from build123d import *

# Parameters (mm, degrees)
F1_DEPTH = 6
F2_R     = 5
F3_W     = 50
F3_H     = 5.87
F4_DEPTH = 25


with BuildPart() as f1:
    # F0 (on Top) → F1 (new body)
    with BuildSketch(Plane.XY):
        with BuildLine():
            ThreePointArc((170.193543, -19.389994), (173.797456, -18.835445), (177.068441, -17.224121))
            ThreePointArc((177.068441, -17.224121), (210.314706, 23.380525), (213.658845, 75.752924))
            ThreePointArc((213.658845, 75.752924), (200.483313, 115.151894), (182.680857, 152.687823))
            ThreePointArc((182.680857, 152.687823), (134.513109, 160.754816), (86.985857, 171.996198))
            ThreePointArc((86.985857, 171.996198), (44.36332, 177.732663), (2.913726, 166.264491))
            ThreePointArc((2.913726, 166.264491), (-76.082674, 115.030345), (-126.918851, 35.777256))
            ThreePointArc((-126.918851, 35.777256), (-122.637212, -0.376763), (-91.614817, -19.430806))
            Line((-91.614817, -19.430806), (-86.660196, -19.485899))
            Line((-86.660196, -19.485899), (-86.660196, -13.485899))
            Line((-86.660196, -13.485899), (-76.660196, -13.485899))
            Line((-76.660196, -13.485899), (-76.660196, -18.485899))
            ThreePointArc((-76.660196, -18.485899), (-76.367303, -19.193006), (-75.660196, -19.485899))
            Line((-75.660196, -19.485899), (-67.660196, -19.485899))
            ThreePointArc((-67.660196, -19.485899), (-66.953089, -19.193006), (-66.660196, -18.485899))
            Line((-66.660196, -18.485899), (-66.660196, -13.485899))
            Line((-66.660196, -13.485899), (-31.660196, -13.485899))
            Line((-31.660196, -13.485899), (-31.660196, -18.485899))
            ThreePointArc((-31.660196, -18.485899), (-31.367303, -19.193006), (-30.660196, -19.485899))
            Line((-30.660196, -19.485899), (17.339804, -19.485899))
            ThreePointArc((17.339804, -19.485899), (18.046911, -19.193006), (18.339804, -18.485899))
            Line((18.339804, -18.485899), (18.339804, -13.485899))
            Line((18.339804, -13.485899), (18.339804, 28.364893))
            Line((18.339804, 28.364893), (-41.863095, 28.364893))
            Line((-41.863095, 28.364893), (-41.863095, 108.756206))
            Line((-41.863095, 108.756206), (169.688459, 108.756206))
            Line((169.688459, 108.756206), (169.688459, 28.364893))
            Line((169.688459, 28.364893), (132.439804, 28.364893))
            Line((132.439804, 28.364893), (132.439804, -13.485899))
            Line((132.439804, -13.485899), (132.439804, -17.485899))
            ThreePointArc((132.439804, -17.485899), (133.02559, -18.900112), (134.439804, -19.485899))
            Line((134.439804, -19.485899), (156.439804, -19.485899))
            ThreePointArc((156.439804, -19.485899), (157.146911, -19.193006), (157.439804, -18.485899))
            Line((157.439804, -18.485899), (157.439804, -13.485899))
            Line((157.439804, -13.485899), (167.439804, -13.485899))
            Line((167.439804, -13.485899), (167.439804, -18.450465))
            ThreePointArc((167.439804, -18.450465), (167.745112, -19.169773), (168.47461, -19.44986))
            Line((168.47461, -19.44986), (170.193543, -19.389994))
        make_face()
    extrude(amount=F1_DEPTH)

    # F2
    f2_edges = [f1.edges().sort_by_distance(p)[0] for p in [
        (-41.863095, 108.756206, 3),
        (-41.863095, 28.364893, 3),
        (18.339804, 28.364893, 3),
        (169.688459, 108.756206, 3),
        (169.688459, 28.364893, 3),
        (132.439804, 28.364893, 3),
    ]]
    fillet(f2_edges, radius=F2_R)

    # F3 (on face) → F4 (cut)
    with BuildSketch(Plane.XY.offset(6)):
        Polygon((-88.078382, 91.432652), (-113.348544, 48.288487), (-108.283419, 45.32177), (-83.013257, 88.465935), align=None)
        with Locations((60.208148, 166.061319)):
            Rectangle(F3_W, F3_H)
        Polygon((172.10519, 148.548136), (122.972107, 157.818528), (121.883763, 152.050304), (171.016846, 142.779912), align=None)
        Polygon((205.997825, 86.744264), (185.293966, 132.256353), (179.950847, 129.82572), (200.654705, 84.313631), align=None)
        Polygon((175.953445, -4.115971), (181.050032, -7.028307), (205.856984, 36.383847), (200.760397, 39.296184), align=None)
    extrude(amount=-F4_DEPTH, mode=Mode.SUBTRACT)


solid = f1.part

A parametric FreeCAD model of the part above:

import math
import FreeCAD as App
import Part
import Sketcher

V = App.Vector
Q = App.Units.Quantity


def edges_at(feature, points):
    """Names of the edges that pass closest to the given points."""
    edges = feature.Shape.Edges
    near = lambda p: min(range(len(edges)), key=lambda i: edges[i].distToShape(Part.Vertex(*p))[0])
    return sorted({f"Edge{near(p) + 1}" for p in points})

doc = App.newDocument("Part")
params = doc.addObject("Spreadsheet::Sheet", "Params")
for row, (alias, value) in enumerate([
    ("sketch1_radius", "0.999999 mm"),
    ("sketch1_radius2", "2 mm"),
    ("sketch1_width", "10 mm"),
    ("sketch1_width2", "8 mm"),
    ("sketch1_width3", "35 mm"),
    ("pad1_length", "6 mm"),
    ("fillet_radius", "5 mm"),
    ("sketch2_width", "50 mm"),
    ("sketch2_length", "50.000001 mm"),
    ("sketch2_height", "5.87 mm"),
    ("sketch2_length2", "5.87 mm"),
    ("pocket1_length", "25 mm"),
], start=1):
    params.set(f"A{row}", alias)
    params.set(f"B{row}", "=" + value)
    params.setAlias(f"B{row}", alias)

body = doc.addObject("PartDesign::Body", "Body")

# Sketch on XY plane
sketch1 = doc.addObject("Sketcher::SketchObject", "Sketch")
body.addObject(sketch1)
sketch1.AttachmentSupport = (doc.XY_Plane, [""])
sketch1.MapMode = "FlatFace"
sketch1.addGeometry([
    Part.ArcOfCircle(Part.Circle(V(170.191678, -7.390013, 0), V(0, 0, 1), 11.999981), math.radians(-89.991096), math.radians(-55.035802)),  # 0
    Part.ArcOfCircle(Part.Circle(V(130.563955, 54.765822, 0), V(0, 0, 1), 85.704254), math.radians(-57.138111), math.radians(14.174635)),  # 1
    Part.ArcOfCircle(Part.Circle(V(-120.485147, -14.086686, 0), V(0, 0, 1), 346.01064), math.radians(15.048944), math.radians(28.815612)),  # 2
    Part.ArcOfCircle(Part.Circle(V(280.190605, 882.752808, 0), V(0, 0, 1), 736.548052), math.radians(-105.20724), math.radians(-97.607578)),  # 3
    Part.ArcOfCircle(Part.Circle(V(51.658691, 70.724843, 0), V(0, 0, 1), 107.256216), math.radians(70.769353), math.radians(117.030978)),  # 4
    Part.ArcOfCircle(Part.Circle(V(82.118457, -42.377087, 0), V(0, 0, 1), 223.16966), math.radians(110.787815), math.radians(159.500362)),  # 5
    Part.ArcOfCircle(Part.Circle(V(-87.456848, 22.12011, 0), V(0, 0, 1), 41.75844), math.radians(160.910111), math.radians(264.285478)),  # 6
    Part.LineSegment(V(-91.614817, -19.430806, 0), V(-86.660196, -19.485899, 0)),  # 7
    Part.LineSegment(V(-86.660196, -19.485899, 0), V(-86.660196, -13.485899, 0)),  # 8
    Part.LineSegment(V(-86.660196, -13.485899, 0), V(-76.660196, -13.485899, 0)),  # 9
    Part.LineSegment(V(-76.660196, -13.485899, 0), V(-76.660196, -18.485899, 0)),  # 10
    Part.ArcOfCircle(Part.Circle(V(-75.660197, -18.4859, 0), V(0, 0, 1), 0.999999), math.radians(179.999957), math.radians(270.000043)),  # 11
    Part.LineSegment(V(-75.660196, -19.485899, 0), V(-67.660196, -19.485899, 0)),  # 12
    Part.ArcOfCircle(Part.Circle(V(-67.660195, -18.4859, 0), V(0, 0, 1), 0.999999), math.radians(-90.000043), math.radians(0.000043)),  # 13
    Part.LineSegment(V(-66.660196, -18.485899, 0), V(-66.660196, -13.485899, 0)),  # 14
    Part.LineSegment(V(-66.660196, -13.485899, 0), V(-31.660196, -13.485899, 0)),  # 15
    Part.LineSegment(V(-31.660196, -13.485899, 0), V(-31.660196, -18.485899, 0)),  # 16
    Part.ArcOfCircle(Part.Circle(V(-30.660197, -18.4859, 0), V(0, 0, 1), 0.999999), math.radians(179.999957), math.radians(270.000043)),  # 17
    Part.LineSegment(V(-30.660196, -19.485899, 0), V(17.339804, -19.485899, 0)),  # 18
    Part.ArcOfCircle(Part.Circle(V(17.339805, -18.4859, 0), V(0, 0, 1), 0.999999), math.radians(-90.000043), math.radians(0.000043)),  # 19
    Part.LineSegment(V(18.339804, -18.485899, 0), V(18.339804, 28.364893, 0)),  # 20
    Part.LineSegment(V(18.339804, 28.364893, 0), V(-41.863095, 28.364893, 0)),  # 21
    Part.LineSegment(V(-41.863095, 28.364893, 0), V(-41.863095, 108.756206, 0)),  # 22
    Part.LineSegment(V(-41.863095, 108.756206, 0), V(169.688459, 108.756206, 0)),  # 23
    Part.LineSegment(V(169.688459, 108.756206, 0), V(169.688459, 28.364893, 0)),  # 24
    Part.LineSegment(V(169.688459, 28.364893, 0), V(132.439804, 28.364893, 0)),  # 25
    Part.LineSegment(V(132.439804, 28.364893, 0), V(132.439804, -17.485899, 0)),  # 26
    Part.ArcOfCircle(Part.Circle(V(134.439804, -17.485899, 0), V(0, 0, 1), 2), math.radians(-179.999994), math.radians(-90.000006)),  # 27
    Part.LineSegment(V(134.439804, -19.485899, 0), V(156.439804, -19.485899, 0)),  # 28
    Part.ArcOfCircle(Part.Circle(V(156.439805, -18.4859, 0), V(0, 0, 1), 0.999999), math.radians(-90.000043), math.radians(0.000043)),  # 29
    Part.LineSegment(V(157.439804, -18.485899, 0), V(157.439804, -13.485899, 0)),  # 30
    Part.LineSegment(V(157.439804, -13.485899, 0), V(167.439804, -13.485899, 0)),  # 31
    Part.LineSegment(V(167.439804, -13.485899, 0), V(167.439804, -18.450465, 0)),  # 32
    Part.ArcOfCircle(Part.Circle(V(168.439804, -18.450466, 0), V(0, 0, 1), 1), math.radians(179.999971), math.radians(271.994617)),  # 33
    Part.LineSegment(V(168.47461, -19.44986, 0), V(170.193543, -19.389994, 0)),  # 34
], False)
sketch1.addConstraint([
    Sketcher.Constraint("Coincident", 0, 2, 1, 1),
    Sketcher.Constraint("Coincident", 1, 2, 2, 1),
    Sketcher.Constraint("Coincident", 2, 2, 3, 2),
    Sketcher.Constraint("Coincident", 3, 1, 4, 1),
    Sketcher.Constraint("Coincident", 4, 2, 5, 1),
    Sketcher.Constraint("Coincident", 5, 2, 6, 1),
    Sketcher.Constraint("Coincident", 6, 2, 7, 1),
    Sketcher.Constraint("Coincident", 7, 2, 8, 1),
    Sketcher.Constraint("Coincident", 8, 2, 9, 1),
    Sketcher.Constraint("Coincident", 9, 2, 10, 1),
    Sketcher.Constraint("Tangent", 10, 2, 11, 1),
    Sketcher.Constraint("Tangent", 11, 2, 12, 1),
    Sketcher.Constraint("Tangent", 12, 2, 13, 1),
    Sketcher.Constraint("Tangent", 13, 2, 14, 1),
    Sketcher.Constraint("Coincident", 14, 2, 15, 1),
    Sketcher.Constraint("Coincident", 15, 2, 16, 1),
    Sketcher.Constraint("Tangent", 16, 2, 17, 1),
    Sketcher.Constraint("Tangent", 17, 2, 18, 1),
    Sketcher.Constraint("Tangent", 18, 2, 19, 1),
    Sketcher.Constraint("Tangent", 19, 2, 20, 1),
    Sketcher.Constraint("Coincident", 20, 2, 21, 1),
    Sketcher.Constraint("Coincident", 21, 2, 22, 1),
    Sketcher.Constraint("Coincident", 22, 2, 23, 1),
    Sketcher.Constraint("Coincident", 23, 2, 24, 1),
    Sketcher.Constraint("Coincident", 24, 2, 25, 1),
    Sketcher.Constraint("Coincident", 25, 2, 26, 1),
    Sketcher.Constraint("Tangent", 26, 2, 27, 1),
    Sketcher.Constraint("Tangent", 27, 2, 28, 1),
    Sketcher.Constraint("Tangent", 28, 2, 29, 1),
    Sketcher.Constraint("Tangent", 29, 2, 30, 1),
    Sketcher.Constraint("Coincident", 30, 2, 31, 1),
    Sketcher.Constraint("Coincident", 31, 2, 32, 1),
    Sketcher.Constraint("Tangent", 32, 2, 33, 1),
    Sketcher.Constraint("Tangent", 33, 2, 34, 1),
    Sketcher.Constraint("Coincident", 34, 2, 0, 1),
    Sketcher.Constraint("Vertical", 8),
    Sketcher.Constraint("Horizontal", 9),
    Sketcher.Constraint("Vertical", 10),
    Sketcher.Constraint("Horizontal", 12),
    Sketcher.Constraint("Vertical", 14),
    Sketcher.Constraint("Horizontal", 15),
    Sketcher.Constraint("Vertical", 16),
    Sketcher.Constraint("Horizontal", 18),
    Sketcher.Constraint("Vertical", 20),
    Sketcher.Constraint("Horizontal", 21),
    Sketcher.Constraint("Vertical", 22),
    Sketcher.Constraint("Horizontal", 23),
    Sketcher.Constraint("Vertical", 24),
    Sketcher.Constraint("Horizontal", 25),
    Sketcher.Constraint("Vertical", 26),
    Sketcher.Constraint("Horizontal", 28),
    Sketcher.Constraint("Vertical", 30),
    Sketcher.Constraint("Horizontal", 31),
    Sketcher.Constraint("Vertical", 32),
    Sketcher.Constraint("Equal", 11, 13),
    Sketcher.Constraint("Equal", 13, 17),
    Sketcher.Constraint("Equal", 17, 19),
    Sketcher.Constraint("Equal", 19, 29),
    Sketcher.Constraint("Equal", 29, 33),
    Sketcher.Constraint("Horizontal", 13, 3, 17, 3),
    Sketcher.Constraint("Horizontal", 19, 3, 29, 3),
    Sketcher.Constraint("Horizontal", 7, 2, 11, 2),
    Sketcher.Constraint("Horizontal", 9, 2, 14, 2),
    Sketcher.Constraint("Horizontal", 21, 2, 24, 2),
    Sketcher.Constraint("Horizontal", 15, 2, 30, 2),
    Sketcher.Constraint("Equal", 9, 31),
    Sketcher.Constraint("Radius", 11, Q("0.999999 mm")),
    Sketcher.Constraint("Radius", 27, Q("2 mm")),
    Sketcher.Constraint("DistanceX", 9, 1, 9, 2, Q("10 mm")),
    Sketcher.Constraint("DistanceX", 12, 1, 12, 2, Q("8 mm")),
    Sketcher.Constraint("DistanceX", 15, 1, 15, 2, Q("35 mm")),
    Sketcher.Constraint("DistanceX", 18, 1, 18, 2, Q("48 mm")),
    Sketcher.Constraint("DistanceX", 28, 1, 28, 2, Q("22 mm")),
    Sketcher.Constraint("DistanceY", 8, 1, 8, 2, Q("6 mm")),
    Sketcher.Constraint("DistanceX", 19, 3, 27, 3, Q("117.099999 mm")),
    Sketcher.Constraint("Radius", 0, Q("11.999981 mm")),
    Sketcher.Constraint("Radius", 2, Q("346.01064 mm")),
    Sketcher.Constraint("Radius", 5, Q("223.16966 mm")),
    Sketcher.Constraint("Radius", 6, Q("41.75844 mm")),
    Sketcher.Constraint("DistanceX", 21, 2, 21, 1, Q("60.202899 mm")),
    Sketcher.Constraint("Radius", 1, Q("85.704254 mm")),
    Sketcher.Constraint("Radius", 3, Q("736.548052 mm")),
    Sketcher.Constraint("Radius", 4, Q("107.256216 mm")),
    Sketcher.Constraint("DistanceY", 1, 3, 2, 2, Q("97.922001 mm")),
    Sketcher.Constraint("DistanceX", 3, 1, 2, 2, Q("95.695 mm")),
    Sketcher.Constraint("DistanceY", 20, 1, 20, 2, Q("46.850792 mm")),
    Sketcher.Constraint("DistanceY", 11, 3, -1, 1, Q("18.4859 mm")),
    Sketcher.Constraint("DistanceY", -1, 1, 3, 1, Q("171.996198 mm")),
    Sketcher.Constraint("DistanceX", 2, 3, 1, 3, Q("251.049102 mm")),
    Sketcher.Constraint("DistanceX", 5, 3, 1, 3, Q("48.445499 mm")),
    Sketcher.Constraint("DistanceY", 5, 3, 2, 3, Q("28.2904 mm")),
    Sketcher.Constraint("DistanceX", 2, 3, 6, 3, Q("33.028299 mm")),
    Sketcher.Constraint("DistanceY", 1, 3, 1, 2, Q("20.987102 mm")),
    Sketcher.Constraint("DistanceX", 34, 2, 0, 2, Q("6.874898 mm")),
    Sketcher.Constraint("DistanceX", 23, 1, 23, 2, Q("211.551554 mm")),
    Sketcher.Constraint("DistanceY", 22, 1, 22, 2, Q("80.391313 mm")),
    Sketcher.Constraint("DistanceY", 32, 2, 32, 1, Q("4.964566 mm")),
    Sketcher.Constraint("DistanceX", -1, 1, 0, 3, Q("170.191678 mm")),
    Sketcher.Constraint("DistanceY", -1, 1, 3, 3, Q("882.752808 mm")),
    Sketcher.Constraint("DistanceX", -1, 1, 4, 3, Q("51.658691 mm")),
    Sketcher.Constraint("DistanceY", -1, 1, 6, 3, Q("22.12011 mm")),
    Sketcher.Constraint("DistanceX", -1, 1, 0, 2, Q("177.068441 mm")),
    Sketcher.Constraint("DistanceY", 0, 2, -1, 1, Q("17.224121 mm")),
    Sketcher.Constraint("DistanceX", -1, 1, 23, 2, Q("169.688459 mm")),
    Sketcher.Constraint("DistanceX", 6, 2, 11, 3, Q("15.95462 mm")),
])
sketch1.setExpression("Constraints[66]", "Params.sketch1_radius")
sketch1.setExpression("Constraints[67]", "Params.sketch1_radius2")
sketch1.setExpression("Constraints[68]", "Params.sketch1_width")
sketch1.setExpression("Constraints[69]", "Params.sketch1_width2")
sketch1.setExpression("Constraints[70]", "Params.sketch1_width3")
pad1 = doc.addObject("PartDesign::Pad", "Pad")
body.addObject(pad1)
pad1.Profile = sketch1
pad1.setExpression("Length", "Params.pad1_length")
doc.recompute()

fillet = doc.addObject("PartDesign::Fillet", "Fillet")
body.addObject(fillet)
fillet.Base = (pad1, edges_at(pad1, [
    (-41.863, 108.756, 3),
    (-41.863, 28.365, 3),
    (18.34, 28.365, 3),
    (169.688, 108.756, 3),
    (169.688, 28.365, 3),
    (132.44, 28.365, 3),
]))
fillet.setExpression("Radius", "Params.fillet_radius")

# Sketch on XY plane
sketch2 = doc.addObject("Sketcher::SketchObject", "Sketch001")
body.addObject(sketch2)
sketch2.AttachmentSupport = (doc.XY_Plane, [""])
sketch2.MapMode = "FlatFace"
sketch2.AttachmentOffset = App.Placement(V(0, 0, 6), App.Rotation())
sketch2.addGeometry([
    Part.LineSegment(V(-88.078382, 91.432652, 0), V(-113.348544, 48.288487, 0)),  # 0
    Part.LineSegment(V(-113.348544, 48.288487, 0), V(-108.283419, 45.32177, 0)),  # 1
    Part.LineSegment(V(-108.283419, 45.32177, 0), V(-83.013257, 88.465935, 0)),  # 2
    Part.LineSegment(V(-83.013257, 88.465935, 0), V(-88.078382, 91.432652, 0)),  # 3
    Part.LineSegment(V(35.208148, 168.996319, 0), V(35.208148, 163.126319, 0)),  # 4
    Part.LineSegment(V(35.208148, 163.126319, 0), V(85.208148, 163.126319, 0)),  # 5
    Part.LineSegment(V(85.208148, 163.126319, 0), V(85.208148, 168.996319, 0)),  # 6
    Part.LineSegment(V(85.208148, 168.996319, 0), V(35.208148, 168.996319, 0)),  # 7
    Part.LineSegment(V(172.10519, 148.548136, 0), V(122.972107, 157.818528, 0)),  # 8
    Part.LineSegment(V(122.972107, 157.818528, 0), V(121.883763, 152.050304, 0)),  # 9
    Part.LineSegment(V(121.883763, 152.050304, 0), V(171.016846, 142.779912, 0)),  # 10
    Part.LineSegment(V(171.016846, 142.779912, 0), V(172.10519, 148.548136, 0)),  # 11
    Part.LineSegment(V(205.997825, 86.744264, 0), V(185.293966, 132.256353, 0)),  # 12
    Part.LineSegment(V(185.293966, 132.256353, 0), V(179.950847, 129.82572, 0)),  # 13
    Part.LineSegment(V(179.950847, 129.82572, 0), V(200.654705, 84.313631, 0)),  # 14
    Part.LineSegment(V(200.654705, 84.313631, 0), V(205.997825, 86.744264, 0)),  # 15
    Part.LineSegment(V(175.953445, -4.115971, 0), V(181.050032, -7.028307, 0)),  # 16
    Part.LineSegment(V(181.050032, -7.028307, 0), V(205.856984, 36.383847, 0)),  # 17
    Part.LineSegment(V(205.856984, 36.383847, 0), V(200.760397, 39.296184, 0)),  # 18
    Part.LineSegment(V(200.760397, 39.296184, 0), V(175.953445, -4.115971, 0)),  # 19
], False)
sketch2.addConstraint([
    Sketcher.Constraint("Coincident", 0, 2, 1, 1),
    Sketcher.Constraint("Coincident", 1, 2, 2, 1),
    Sketcher.Constraint("Coincident", 2, 2, 3, 1),
    Sketcher.Constraint("Coincident", 3, 2, 0, 1),
    Sketcher.Constraint("Coincident", 4, 2, 5, 1),
    Sketcher.Constraint("Coincident", 5, 2, 6, 1),
    Sketcher.Constraint("Coincident", 6, 2, 7, 1),
    Sketcher.Constraint("Coincident", 7, 2, 4, 1),
    Sketcher.Constraint("Coincident", 8, 2, 9, 1),
    Sketcher.Constraint("Coincident", 9, 2, 10, 1),
    Sketcher.Constraint("Coincident", 10, 2, 11, 1),
    Sketcher.Constraint("Coincident", 11, 2, 8, 1),
    Sketcher.Constraint("Coincident", 12, 2, 13, 1),
    Sketcher.Constraint("Coincident", 13, 2, 14, 1),
    Sketcher.Constraint("Coincident", 14, 2, 15, 1),
    Sketcher.Constraint("Coincident", 15, 2, 12, 1),
    Sketcher.Constraint("Coincident", 16, 2, 17, 1),
    Sketcher.Constraint("Coincident", 17, 2, 18, 1),
    Sketcher.Constraint("Coincident", 18, 2, 19, 1),
    Sketcher.Constraint("Coincident", 19, 2, 16, 1),
    Sketcher.Constraint("Vertical", 4),
    Sketcher.Constraint("Horizontal", 5),
    Sketcher.Constraint("Vertical", 6),
    Sketcher.Constraint("Horizontal", 7),
    Sketcher.Constraint("Perpendicular", 0, 1),
    Sketcher.Constraint("Perpendicular", 1, 2),
    Sketcher.Constraint("Perpendicular", 2, 3),
    Sketcher.Constraint("Perpendicular", 8, 9),
    Sketcher.Constraint("Perpendicular", 9, 10),
    Sketcher.Constraint("Perpendicular", 10, 11),
    Sketcher.Constraint("Perpendicular", 12, 13),
    Sketcher.Constraint("Perpendicular", 13, 14),
    Sketcher.Constraint("Perpendicular", 14, 15),
    Sketcher.Constraint("Perpendicular", 16, 17),
    Sketcher.Constraint("Perpendicular", 17, 18),
    Sketcher.Constraint("Perpendicular", 18, 19),
    Sketcher.Constraint("Equal", 2, 8),
    Sketcher.Constraint("Equal", 3, 9),
    Sketcher.Constraint("Equal", 10, 12),
    Sketcher.Constraint("Equal", 11, 13),
    Sketcher.Constraint("Equal", 15, 16),
    Sketcher.Constraint("Equal", 14, 17),
    Sketcher.Constraint("DistanceX", 5, 1, 5, 2, Q("50 mm")),
    Sketcher.Constraint("Distance", 0, Q("50.000001 mm")),
    Sketcher.Constraint("DistanceY", 4, 2, 4, 1, Q("5.87 mm")),
    Sketcher.Constraint("Distance", 1, Q("5.87 mm")),
    Sketcher.Constraint("DistanceX", 10, 2, 13, 2, Q("8.934001 mm")),
    Sketcher.Constraint("DistanceX", 4, 2, 10, 2, Q("135.808698 mm")),
    Sketcher.Constraint("DistanceX", 1, 2, -1, 1, Q("108.283419 mm")),
    Sketcher.Constraint("DistanceY", -1, 1, 1, 2, Q("45.32177 mm")),
    Sketcher.Constraint("DistanceY", -1, 1, 4, 2, Q("163.126319 mm")),
    Sketcher.Constraint("DistanceY", -1, 1, 10, 2, Q("142.779912 mm")),
    Sketcher.Constraint("DistanceX", -1, 1, 11, 2, Q("172.10519 mm")),
    Sketcher.Constraint("DistanceY", -1, 1, 13, 2, Q("129.82572 mm")),
    Sketcher.Constraint("DistanceY", -1, 1, 14, 2, Q("84.313631 mm")),
    Sketcher.Constraint("DistanceX", -1, 1, 16, 2, Q("181.050032 mm")),
    Sketcher.Constraint("DistanceY", 19, 2, -1, 1, Q("4.115971 mm")),
    Sketcher.Constraint("DistanceX", 1, 2, 2, 2, Q("25.270162 mm")),
    Sketcher.Constraint("DistanceX", 3, 2, 4, 2, Q("123.28653 mm")),
    Sketcher.Constraint("DistanceY", 16, 2, 14, 2, Q("91.341938 mm")),
])
sketch2.setExpression("Constraints[42]", "Params.sketch2_width")
sketch2.setExpression("Constraints[43]", "Params.sketch2_length")
sketch2.setExpression("Constraints[44]", "Params.sketch2_height")
sketch2.setExpression("Constraints[45]", "Params.sketch2_length2")
pocket1 = doc.addObject("PartDesign::Pocket", "Pocket")
body.addObject(pocket1)
pocket1.Profile = sketch2
pocket1.setExpression("Length", "Params.pocket1_length")

doc.recompute()
